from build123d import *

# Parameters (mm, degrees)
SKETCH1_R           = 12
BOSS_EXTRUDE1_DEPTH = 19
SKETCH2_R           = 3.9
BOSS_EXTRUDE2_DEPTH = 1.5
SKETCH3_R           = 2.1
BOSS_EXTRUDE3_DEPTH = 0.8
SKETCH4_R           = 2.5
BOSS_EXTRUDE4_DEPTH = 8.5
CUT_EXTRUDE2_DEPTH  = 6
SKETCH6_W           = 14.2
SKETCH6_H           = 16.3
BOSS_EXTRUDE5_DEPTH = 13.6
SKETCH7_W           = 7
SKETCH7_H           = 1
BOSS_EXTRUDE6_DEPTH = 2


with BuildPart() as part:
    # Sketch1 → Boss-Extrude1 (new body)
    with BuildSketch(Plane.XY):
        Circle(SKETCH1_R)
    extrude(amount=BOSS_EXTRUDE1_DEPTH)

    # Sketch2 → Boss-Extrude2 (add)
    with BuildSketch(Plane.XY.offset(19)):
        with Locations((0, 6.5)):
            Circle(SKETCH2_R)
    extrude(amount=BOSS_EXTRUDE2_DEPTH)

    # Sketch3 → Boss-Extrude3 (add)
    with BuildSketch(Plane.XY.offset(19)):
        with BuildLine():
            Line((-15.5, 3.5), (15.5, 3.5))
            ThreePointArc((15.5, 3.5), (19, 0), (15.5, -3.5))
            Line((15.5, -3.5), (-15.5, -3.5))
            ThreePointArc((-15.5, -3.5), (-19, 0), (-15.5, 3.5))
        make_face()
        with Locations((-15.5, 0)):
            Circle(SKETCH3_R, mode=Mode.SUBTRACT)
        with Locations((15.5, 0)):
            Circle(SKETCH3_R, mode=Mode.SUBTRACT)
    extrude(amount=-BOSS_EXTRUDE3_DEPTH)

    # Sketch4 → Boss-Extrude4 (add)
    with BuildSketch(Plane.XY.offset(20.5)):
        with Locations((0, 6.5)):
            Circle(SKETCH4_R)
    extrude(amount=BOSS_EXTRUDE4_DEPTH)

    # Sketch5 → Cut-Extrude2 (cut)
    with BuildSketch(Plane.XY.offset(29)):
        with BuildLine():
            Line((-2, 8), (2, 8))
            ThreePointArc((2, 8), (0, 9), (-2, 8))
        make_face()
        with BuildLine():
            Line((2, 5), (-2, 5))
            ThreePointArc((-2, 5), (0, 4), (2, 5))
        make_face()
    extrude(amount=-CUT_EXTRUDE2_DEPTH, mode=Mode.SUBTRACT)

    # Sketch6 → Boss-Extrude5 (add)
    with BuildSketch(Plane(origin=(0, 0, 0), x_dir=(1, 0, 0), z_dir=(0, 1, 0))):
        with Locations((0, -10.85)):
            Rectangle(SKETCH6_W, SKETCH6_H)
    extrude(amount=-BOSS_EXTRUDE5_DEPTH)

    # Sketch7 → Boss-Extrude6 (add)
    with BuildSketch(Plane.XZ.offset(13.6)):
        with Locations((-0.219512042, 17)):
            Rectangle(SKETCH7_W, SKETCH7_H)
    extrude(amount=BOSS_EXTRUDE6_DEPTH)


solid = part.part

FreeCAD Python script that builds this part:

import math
import FreeCAD as App
import Part
import Sketcher

V = App.Vector


def add_polygon(sketch, points):
    """Adds a closed chain of lines whose ends are joined by coincident constraints."""
    first, n = sketch.GeometryCount, len(points)
    for a, b in zip(points, points[1:] + points[:1]):
        sketch.addGeometry(Part.LineSegment(App.Vector(*a, 0), App.Vector(*b, 0)), False)
    for i in range(n):
        sketch.addConstraint(Sketcher.Constraint("Coincident", first + i, 2, first + (i + 1) % n, 1))

doc = App.newDocument("Part")
body = doc.addObject("PartDesign::Body", "Body")

# Sketch on XY plane
sketch1 = body.newObject("Sketcher::SketchObject", "Sketch")
sketch1.AttachmentSupport = (doc.getObject("XY_Plane"), [""])
sketch1.MapMode = "FlatFace"
sketch1.addGeometry(Part.Circle(V(0, 0, 0), V(0, 0, 1), 12), False)
sketch1.addConstraint([
    Sketcher.Constraint("Coincident", 0, 3, -1, 1),
    Sketcher.Constraint("Diameter", 0, 24.0),
])
pad1 = body.newObject("PartDesign::Pad", "Pad")
pad1.Profile = sketch1
pad1.Length = 19

# Sketch on XY plane
sketch2 = body.newObject("Sketcher::SketchObject", "Sketch001")
sketch2.AttachmentSupport = (doc.getObject("XY_Plane"), [""])
sketch2.MapMode = "FlatFace"
sketch2.AttachmentOffset = App.Placement(V(0, 0, 19), App.Rotation())
sketch2.addGeometry(Part.Circle(V(0, 6.5, 0), V(0, 0, 1), 3.9), False)
sketch2.addConstraint([
    Sketcher.Constraint("PointOnObject", 0, 3, -2),
    Sketcher.Constraint("Diameter", 0, 7.8),
    Sketcher.Constraint("DistanceY", -1, 1, 0, 3, 6.5),
])
pad2 = body.newObject("PartDesign::Pad", "Pad001")
pad2.Profile = sketch2
pad2.Length = 1.5

# Sketch on XY plane
sketch3 = body.newObject("Sketcher::SketchObject", "Sketch002")
sketch3.AttachmentSupport = (doc.getObject("XY_Plane"), [""])
sketch3.MapMode = "FlatFace"
sketch3.AttachmentOffset = App.Placement(V(0, 0, 19), App.Rotation())
sketch3.addGeometry([
    Part.LineSegment(V(15.5, 3.5, 0), V(-15.5, 3.5, 0)),  # 0
    Part.ArcOfCircle(Part.Circle(V(-15.5, 0, 0), V(0, 0, 1), 3.5), math.radians(90), math.radians(270)),  # 1
    Part.LineSegment(V(-15.5, -3.5, 0), V(15.5, -3.5, 0)),  # 2
    Part.ArcOfCircle(Part.Circle(V(15.5, 0, 0), V(0, 0, 1), 3.5), math.radians(-90), math.radians(90)),  # 3
    Part.Circle(V(15.5, 0, 0), V(0, 0, 1), 2.1),  # 4
    Part.Circle(V(-15.5, 0, 0), V(0, 0, 1), 2.1),  # 5
], False)
sketch3.addConstraint([
    Sketcher.Constraint("Tangent", 0, 2, 1, 1),
    Sketcher.Constraint("Tangent", 1, 2, 2, 1),
    Sketcher.Constraint("Tangent", 2, 2, 3, 1),
    Sketcher.Constraint("Tangent", 3, 2, 0, 1),
    Sketcher.Constraint("Horizontal", 0),
    Sketcher.Constraint("Horizontal", 2),
    Sketcher.Constraint("Coincident", 4, 3, 3, 3),
    Sketcher.Constraint("Coincident", 5, 3, 1, 3),
    Sketcher.Constraint("Equal", 4, 5),
    Sketcher.Constraint("Symmetric", 1, 3, 3, 3, -1, 1),
    Sketcher.Constraint("Diameter", 4, 4.2),
    Sketcher.Constraint("Radius", 1, 3.5),
    Sketcher.Constraint("DistanceX", 0, 2, 0, 1, 31.0),
])
pad3 = body.newObject("PartDesign::Pad", "Pad002")
pad3.Profile = sketch3
pad3.Length = 0.8
pad3.Reversed = True

# Sketch on XY plane
sketch4 = body.newObject("Sketcher::SketchObject", "Sketch003")
sketch4.AttachmentSupport = (doc.getObject("XY_Plane"), [""])
sketch4.MapMode = "FlatFace"
sketch4.AttachmentOffset = App.Placement(V(0, 0, 20.5), App.Rotation())
sketch4.addGeometry(Part.Circle(V(0, 6.5, 0), V(0, 0, 1), 2.5), False)
sketch4.addConstraint([
    Sketcher.Constraint("PointOnObject", 0, 3, -2),
    Sketcher.Constraint("Diameter", 0, 5.0),
    Sketcher.Constraint("DistanceY", -1, 1, 0, 3, 6.5),
])
pad4 = body.newObject("PartDesign::Pad", "Pad003")
pad4.Profile = sketch4
pad4.Length = 8.5

# Sketch on XY plane
sketch5 = body.newObject("Sketcher::SketchObject", "Sketch004")
sketch5.AttachmentSupport = (doc.getObject("XY_Plane"), [""])
sketch5.MapMode = "FlatFace"
sketch5.AttachmentOffset = App.Placement(V(0, 0, 29), App.Rotation())
sketch5.addGeometry([
    Part.LineSegment(V(-2, 8, 0), V(2, 8, 0)),
    Part.ArcOfCircle(Part.Circle(V(0, 6.5, 0), V(0, 0, 1), 2.5), math.radians(37), math.radians(143)),
    Part.LineSegment(V(2, 5, 0), V(-2, 5, 0)),
    Part.ArcOfCircle(Part.Circle(V(0, 6.5, 0), V(0, 0, 1), 2.5), math.radians(-143), math.radians(-37)),
], False)
sketch5.addConstraint([
    Sketcher.Constraint("Coincident", 0, 1, 1, 2),
    Sketcher.Constraint("Coincident", 1, 1, 0, 2),
    Sketcher.Constraint("Coincident", 2, 1, 3, 2),
    Sketcher.Constraint("Coincident", 3, 1, 2, 2),
    Sketcher.Constraint("Horizontal", 0),
    Sketcher.Constraint("Horizontal", 2),
    Sketcher.Constraint("Coincident", 3, 3, 1, 3),
    Sketcher.Constraint("Equal", 1, 3),
    Sketcher.Constraint("PointOnObject", 1, 3, -2),
    Sketcher.Constraint("Vertical", 1, 1, 2, 1),
    Sketcher.Constraint("Radius", 1, 2.5),
    Sketcher.Constraint("DistanceX", 0, 1, 0, 2, 4.0),
    Sketcher.Constraint("DistanceY", -1, 1, 0, 1, 8.0),
])
pocket1 = body.newObject("PartDesign::Pocket", "Pocket")
pocket1.Profile = sketch5
pocket1.Length = 6

# Sketch on XZ plane
sketch6 = body.newObject("Sketcher::SketchObject", "Sketch005")
sketch6.AttachmentSupport = (doc.getObject("XZ_Plane"), [""])
sketch6.MapMode = "FlatFace"
add_polygon(sketch6, [(-7, 3), (-7, 19), (7, 19), (7, 3)])  # lines 0-3
sketch6.addConstraint([
    Sketcher.Constraint("Vertical", 0),
    Sketcher.Constraint("Horizontal", 1),
    Sketcher.Constraint("Vertical", 2),
    Sketcher.Constraint("Horizontal", 3),
    Sketcher.Constraint("DistanceX", 1, 1, 1, 2, 14.2),
    Sketcher.Constraint("DistanceY", 0, 1, 0, 2, 16.3),
    Sketcher.Constraint("DistanceY", -1, 1, 0, 2, 19.0),
    Sketcher.Constraint("DistanceX", 0, 2, -1, 1, 7.1),
])
pad5 = body.newObject("PartDesign::Pad", "Pad004")
pad5.Profile = sketch6
pad5.Length = 13.6

# Sketch on XZ plane
sketch7 = body.newObject("Sketcher::SketchObject", "Sketch006")
sketch7.AttachmentSupport = (doc.getObject("XZ_Plane"), [""])
sketch7.MapMode = "FlatFace"
sketch7.AttachmentOffset = App.Placement(V(0, 0, 13.6), App.Rotation())
add_polygon(sketch7, [(-3.7, 17.5), (-3.7, 16.5), (3.3, 16.5), (3.3, 17.5)])  # lines 0-3
sketch7.addConstraint([
    Sketcher.Constraint("Vertical", 0),
    Sketcher.Constraint("Horizontal", 1),
    Sketcher.Constraint("Vertical", 2),
    Sketcher.Constraint("Horizontal", 3),
    Sketcher.Constraint("DistanceX", 1, 1, 1, 2, 7.0),
    Sketcher.Constraint("DistanceY", 0, 2, 0, 1, 1.0),
    Sketcher.Constraint("DistanceY", -1, 1, 0, 2, 16.5),
    Sketcher.Constraint("DistanceX", 0, 2, -1, 1, 3.719512),
])
pad6 = body.newObject("PartDesign::Pad", "Pad005")
pad6.Profile = sketch7
pad6.Length = 2

doc.recompute()
